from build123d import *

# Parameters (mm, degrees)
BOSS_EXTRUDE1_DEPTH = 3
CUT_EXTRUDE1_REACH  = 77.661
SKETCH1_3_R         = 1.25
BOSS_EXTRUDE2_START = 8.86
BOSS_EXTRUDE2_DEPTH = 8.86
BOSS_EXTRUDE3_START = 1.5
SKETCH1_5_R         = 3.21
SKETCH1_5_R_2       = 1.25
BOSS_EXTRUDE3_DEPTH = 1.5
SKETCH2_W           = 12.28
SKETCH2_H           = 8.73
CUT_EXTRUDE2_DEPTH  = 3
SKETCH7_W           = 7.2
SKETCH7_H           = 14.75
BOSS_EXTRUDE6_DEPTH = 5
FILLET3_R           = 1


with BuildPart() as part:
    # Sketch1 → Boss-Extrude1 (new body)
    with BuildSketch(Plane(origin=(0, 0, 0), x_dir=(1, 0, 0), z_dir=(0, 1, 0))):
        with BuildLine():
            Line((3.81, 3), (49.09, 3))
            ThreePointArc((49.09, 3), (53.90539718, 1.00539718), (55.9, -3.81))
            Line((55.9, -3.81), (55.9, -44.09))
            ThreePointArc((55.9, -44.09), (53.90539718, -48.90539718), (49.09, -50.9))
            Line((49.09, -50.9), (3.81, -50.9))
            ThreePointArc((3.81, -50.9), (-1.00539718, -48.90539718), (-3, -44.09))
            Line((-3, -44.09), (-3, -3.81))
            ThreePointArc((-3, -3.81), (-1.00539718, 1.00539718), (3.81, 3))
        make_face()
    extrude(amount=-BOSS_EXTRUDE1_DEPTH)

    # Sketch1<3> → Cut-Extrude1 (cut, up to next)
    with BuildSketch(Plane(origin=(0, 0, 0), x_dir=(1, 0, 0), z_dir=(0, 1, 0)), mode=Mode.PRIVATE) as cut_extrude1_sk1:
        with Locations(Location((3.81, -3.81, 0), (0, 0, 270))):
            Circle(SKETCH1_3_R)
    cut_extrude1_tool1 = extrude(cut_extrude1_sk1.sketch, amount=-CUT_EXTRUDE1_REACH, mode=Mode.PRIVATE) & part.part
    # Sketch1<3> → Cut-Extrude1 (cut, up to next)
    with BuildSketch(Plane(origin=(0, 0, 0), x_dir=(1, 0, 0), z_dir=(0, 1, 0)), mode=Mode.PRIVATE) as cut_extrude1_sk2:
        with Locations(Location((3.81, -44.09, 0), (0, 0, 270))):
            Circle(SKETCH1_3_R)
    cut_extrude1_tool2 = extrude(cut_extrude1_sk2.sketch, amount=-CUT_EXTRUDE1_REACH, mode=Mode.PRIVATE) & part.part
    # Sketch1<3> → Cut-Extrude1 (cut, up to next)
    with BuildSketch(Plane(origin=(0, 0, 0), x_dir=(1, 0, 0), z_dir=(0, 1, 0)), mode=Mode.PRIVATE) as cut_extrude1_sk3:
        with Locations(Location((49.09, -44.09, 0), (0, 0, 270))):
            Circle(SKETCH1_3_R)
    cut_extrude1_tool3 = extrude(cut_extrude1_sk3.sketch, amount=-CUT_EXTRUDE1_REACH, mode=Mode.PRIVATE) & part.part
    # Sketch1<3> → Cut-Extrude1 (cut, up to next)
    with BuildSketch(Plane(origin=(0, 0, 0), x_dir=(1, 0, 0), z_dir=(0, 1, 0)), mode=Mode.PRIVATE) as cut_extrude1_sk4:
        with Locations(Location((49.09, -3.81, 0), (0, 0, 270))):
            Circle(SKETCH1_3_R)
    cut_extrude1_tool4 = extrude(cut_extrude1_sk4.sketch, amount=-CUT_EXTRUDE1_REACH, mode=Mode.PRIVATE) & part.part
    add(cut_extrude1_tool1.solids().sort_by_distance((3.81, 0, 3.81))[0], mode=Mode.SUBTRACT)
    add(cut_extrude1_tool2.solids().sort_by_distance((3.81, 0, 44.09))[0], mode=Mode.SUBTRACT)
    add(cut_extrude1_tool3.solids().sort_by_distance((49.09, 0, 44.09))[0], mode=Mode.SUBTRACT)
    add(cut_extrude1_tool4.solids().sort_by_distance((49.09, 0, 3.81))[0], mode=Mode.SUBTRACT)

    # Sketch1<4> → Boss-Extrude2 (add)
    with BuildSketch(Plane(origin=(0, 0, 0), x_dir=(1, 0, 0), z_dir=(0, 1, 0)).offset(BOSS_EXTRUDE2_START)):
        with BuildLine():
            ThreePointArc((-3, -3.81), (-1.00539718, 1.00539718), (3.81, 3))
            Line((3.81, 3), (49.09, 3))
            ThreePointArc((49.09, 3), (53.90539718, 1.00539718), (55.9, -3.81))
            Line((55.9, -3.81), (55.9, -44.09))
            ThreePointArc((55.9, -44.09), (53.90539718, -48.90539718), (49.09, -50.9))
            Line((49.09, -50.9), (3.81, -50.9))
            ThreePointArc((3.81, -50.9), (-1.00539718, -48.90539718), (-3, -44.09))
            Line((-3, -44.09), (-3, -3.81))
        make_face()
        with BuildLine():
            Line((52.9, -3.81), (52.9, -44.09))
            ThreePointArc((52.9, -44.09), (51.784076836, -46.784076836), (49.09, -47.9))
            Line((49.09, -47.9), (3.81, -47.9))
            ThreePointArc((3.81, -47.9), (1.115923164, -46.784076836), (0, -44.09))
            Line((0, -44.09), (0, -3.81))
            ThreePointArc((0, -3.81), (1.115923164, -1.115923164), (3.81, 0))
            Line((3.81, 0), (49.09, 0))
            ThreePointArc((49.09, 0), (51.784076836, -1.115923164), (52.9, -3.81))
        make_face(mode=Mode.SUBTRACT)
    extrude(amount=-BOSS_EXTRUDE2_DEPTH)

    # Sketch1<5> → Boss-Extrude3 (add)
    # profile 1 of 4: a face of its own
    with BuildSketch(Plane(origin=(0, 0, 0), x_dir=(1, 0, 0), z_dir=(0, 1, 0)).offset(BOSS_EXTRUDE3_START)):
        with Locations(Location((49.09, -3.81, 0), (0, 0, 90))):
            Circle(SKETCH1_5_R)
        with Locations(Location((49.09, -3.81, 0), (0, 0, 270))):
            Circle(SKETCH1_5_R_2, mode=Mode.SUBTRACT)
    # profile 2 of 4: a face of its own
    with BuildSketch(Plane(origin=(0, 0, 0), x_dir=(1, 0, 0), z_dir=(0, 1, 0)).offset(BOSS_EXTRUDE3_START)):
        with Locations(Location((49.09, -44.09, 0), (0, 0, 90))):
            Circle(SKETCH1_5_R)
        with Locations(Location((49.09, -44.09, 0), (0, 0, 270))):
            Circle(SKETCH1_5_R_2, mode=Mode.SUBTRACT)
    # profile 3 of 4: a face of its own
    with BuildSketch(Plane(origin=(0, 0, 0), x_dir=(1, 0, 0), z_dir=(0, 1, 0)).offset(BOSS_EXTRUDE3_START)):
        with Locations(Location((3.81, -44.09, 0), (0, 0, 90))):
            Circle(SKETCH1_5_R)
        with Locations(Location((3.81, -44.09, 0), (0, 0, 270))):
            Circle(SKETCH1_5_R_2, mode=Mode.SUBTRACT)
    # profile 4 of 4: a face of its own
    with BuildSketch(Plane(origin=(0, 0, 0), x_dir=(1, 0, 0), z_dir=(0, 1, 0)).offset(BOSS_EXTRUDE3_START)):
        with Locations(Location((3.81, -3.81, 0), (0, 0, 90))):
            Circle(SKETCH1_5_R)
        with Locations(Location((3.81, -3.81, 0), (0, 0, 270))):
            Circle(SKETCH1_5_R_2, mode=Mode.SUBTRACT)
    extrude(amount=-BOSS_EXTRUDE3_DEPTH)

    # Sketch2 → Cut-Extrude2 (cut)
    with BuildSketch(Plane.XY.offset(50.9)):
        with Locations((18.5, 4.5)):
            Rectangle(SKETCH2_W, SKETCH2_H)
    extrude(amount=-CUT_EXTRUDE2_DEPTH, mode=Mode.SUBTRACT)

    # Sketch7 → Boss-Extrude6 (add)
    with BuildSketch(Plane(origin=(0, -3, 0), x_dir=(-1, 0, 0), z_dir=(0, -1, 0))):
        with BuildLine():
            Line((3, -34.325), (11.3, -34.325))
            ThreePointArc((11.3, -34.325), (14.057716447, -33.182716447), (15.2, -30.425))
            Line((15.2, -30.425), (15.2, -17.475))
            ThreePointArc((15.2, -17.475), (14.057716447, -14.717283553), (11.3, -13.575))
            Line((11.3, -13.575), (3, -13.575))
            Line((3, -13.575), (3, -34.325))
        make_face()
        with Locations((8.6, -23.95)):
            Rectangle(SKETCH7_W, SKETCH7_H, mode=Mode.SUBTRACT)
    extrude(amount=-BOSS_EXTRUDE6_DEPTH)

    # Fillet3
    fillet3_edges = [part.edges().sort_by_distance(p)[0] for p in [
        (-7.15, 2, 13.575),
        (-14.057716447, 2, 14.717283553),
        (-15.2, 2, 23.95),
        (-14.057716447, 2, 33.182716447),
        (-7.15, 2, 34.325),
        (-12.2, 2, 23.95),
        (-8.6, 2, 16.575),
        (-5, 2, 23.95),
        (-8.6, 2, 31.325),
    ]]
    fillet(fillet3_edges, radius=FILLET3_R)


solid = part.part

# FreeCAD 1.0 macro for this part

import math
import FreeCAD as App
import Part
import Sketcher
from FreeCAD import Vector


def edges_at(feature, points):
    """Names of the edges that pass closest to the given points."""
    edges = feature.Shape.Edges
    near = lambda p: min(range(len(edges)), key=lambda i: edges[i].distToShape(Part.Vertex(*p))[0])
    return sorted({f"Edge{near(p) + 1}" for p in points})


def add_polygon(sketch, points):
    """Adds a closed chain of lines whose ends are joined by coincident constraints."""
    first, n = sketch.GeometryCount, len(points)
    for a, b in zip(points, points[1:] + points[:1]):
        sketch.addGeometry(Part.LineSegment(App.Vector(*a, 0), App.Vector(*b, 0)), False)
    for i in range(n):
        sketch.addConstraint(Sketcher.Constraint("Coincident", first + i, 2, first + (i + 1) % n, 1))

doc = App.newDocument("Part")
body = doc.addObject("PartDesign::Body", "Body")

sketch1 = doc.addObject("Sketcher::SketchObject", "Sketch")
body.addObject(sketch1)
sketch1.AttachmentSupport = (doc.XZ_Plane, [""])
sketch1.MapMode = "FlatFace"
sketch1.addGeometry([
    Part.LineSegment(Vector(49, -3, 0), Vector(4, -3, 0)),
    Part.ArcOfCircle(Part.Circle(Vector(4, 4, 0), Vector(0, 0, 1), 7), math.radians(180), math.radians(270)),
    Part.LineSegment(Vector(-3, 4, 0), Vector(-3, 44, 0)),
    Part.ArcOfCircle(Part.Circle(Vector(4, 44, 0), Vector(0, 0, 1), 7), math.radians(90), math.radians(180)),
    Part.LineSegment(Vector(4, 51, 0), Vector(49, 51, 0)),
    Part.ArcOfCircle(Part.Circle(Vector(49, 44, 0), Vector(0, 0, 1), 7), math.radians(0), math.radians(90)),
    Part.LineSegment(Vector(56, 44, 0), Vector(56, 4, 0)),
    Part.ArcOfCircle(Part.Circle(Vector(49, 4, 0), Vector(0, 0, 1), 7), math.radians(-90), math.radians(0)),
], False)
sketch1.addConstraint([
    Sketcher.Constraint("Tangent", 0, 2, 1, 2),
    Sketcher.Constraint("Tangent", 1, 1, 2, 1),
    Sketcher.Constraint("Tangent", 2, 2, 3, 2),
    Sketcher.Constraint("Tangent", 3, 1, 4, 1),
    Sketcher.Constraint("Tangent", 4, 2, 5, 2),
    Sketcher.Constraint("Tangent", 5, 1, 6, 1),
    Sketcher.Constraint("Tangent", 6, 2, 7, 2),
    Sketcher.Constraint("Tangent", 7, 1, 0, 1),
    Sketcher.Constraint("Horizontal", 0),
    Sketcher.Constraint("Vertical", 2),
    Sketcher.Constraint("Horizontal", 4),
    Sketcher.Constraint("Vertical", 6),
    Sketcher.Constraint("Equal", 1, 3),
    Sketcher.Constraint("Equal", 3, 5),
    Sketcher.Constraint("Equal", 5, 7),
    Sketcher.Constraint("Radius", 1, 6.81),
    Sketcher.Constraint("DistanceY", 0, 2, -1, 1, 3.0),
    Sketcher.Constraint("DistanceX", 1, 1, -1, 1, 3.0),
    Sketcher.Constraint("DistanceX", 0, 2, 0, 1, 45.28),
    Sketcher.Constraint("DistanceY", 2, 1, 2, 2, 40.28),
])
pad1 = doc.addObject("PartDesign::Pad", "Pad")
body.addObject(pad1)
pad1.Profile = sketch1
pad1.Length = 3

sketch2 = doc.addObject("Sketcher::SketchObject", "Sketch001")
body.addObject(sketch2)
sketch2.AttachmentSupport = (doc.XZ_Plane, [""])
sketch2.MapMode = "FlatFace"
sketch2.addGeometry(Part.Circle(Vector(3.8, 3.8, 0), Vector(0, 0, 1), 1.2), False)
sketch2.addConstraint([
    Sketcher.Constraint("Diameter", 0, 2.5),
    Sketcher.Constraint("DistanceX", -1, 1, 0, 3, 3.81),
    Sketcher.Constraint("DistanceY", -1, 1, 0, 3, 3.81),
])
pocket1 = doc.addObject("PartDesign::Pocket", "Pocket")
body.addObject(pocket1)
pocket1.Profile = sketch2
pocket1.Type = "UpToFirst"
pocket1.Reversed = True

sketch3 = doc.addObject("Sketcher::SketchObject", "Sketch002")
body.addObject(sketch3)
sketch3.AttachmentSupport = (doc.XZ_Plane, [""])
sketch3.MapMode = "FlatFace"
sketch3.addGeometry(Part.Circle(Vector(3.8, 44.1, 0), Vector(0, 0, 1), 1.2), False)
sketch3.addConstraint([
    Sketcher.Constraint("Diameter", 0, 2.5),
    Sketcher.Constraint("DistanceX", -1, 1, 0, 3, 3.81),
    Sketcher.Constraint("DistanceY", -1, 1, 0, 3, 44.09),
])
pocket2 = doc.addObject("PartDesign::Pocket", "Pocket001")
body.addObject(pocket2)
pocket2.Profile = sketch3
pocket2.Type = "UpToFirst"
pocket2.Reversed = True

sketch4 = doc.addObject("Sketcher::SketchObject", "Sketch003")
body.addObject(sketch4)
sketch4.AttachmentSupport = (doc.XZ_Plane, [""])
sketch4.MapMode = "FlatFace"
sketch4.addGeometry(Part.Circle(Vector(49.1, 44.1, 0), Vector(0, 0, 1), 1.2), False)
sketch4.addConstraint([
    Sketcher.Constraint("Diameter", 0, 2.5),
    Sketcher.Constraint("DistanceX", -1, 1, 0, 3, 49.09),
    Sketcher.Constraint("DistanceY", -1, 1, 0, 3, 44.09),
])
pocket3 = doc.addObject("PartDesign::Pocket", "Pocket002")
body.addObject(pocket3)
pocket3.Profile = sketch4
pocket3.Type = "UpToFirst"
pocket3.Reversed = True

sketch5 = doc.addObject("Sketcher::SketchObject", "Sketch004")
body.addObject(sketch5)
sketch5.AttachmentSupport = (doc.XZ_Plane, [""])
sketch5.MapMode = "FlatFace"
sketch5.addGeometry(Part.Circle(Vector(49.1, 3.8, 0), Vector(0, 0, 1), 1.2), False)
sketch5.addConstraint([
    Sketcher.Constraint("Diameter", 0, 2.5),
    Sketcher.Constraint("DistanceX", -1, 1, 0, 3, 49.09),
    Sketcher.Constraint("DistanceY", -1, 1, 0, 3, 3.81),
])
pocket4 = doc.addObject("PartDesign::Pocket", "Pocket003")
body.addObject(pocket4)
pocket4.Profile = sketch5
pocket4.Type = "UpToFirst"
pocket4.Reversed = True

sketch6 = doc.addObject("Sketcher::SketchObject", "Sketch005")
body.addObject(sketch6)
sketch6.AttachmentSupport = (doc.XZ_Plane, [""])
sketch6.MapMode = "FlatFace"
sketch6.AttachmentOffset = App.Placement(Vector(0, 0, -8.86), App.Rotation())
sketch6.addGeometry([
    Part.ArcOfCircle(Part.Circle(Vector(3.8, 3.8, 0), Vector(0, 0, 1), 6.8), math.radians(180), math.radians(270)),
    Part.LineSegment(Vector(-3, 3.8, 0), Vector(-3, 44.1, 0)),
    Part.ArcOfCircle(Part.Circle(Vector(3.8, 44.1, 0), Vector(0, 0, 1), 6.8), math.radians(90), math.radians(180)),
    Part.LineSegment(Vector(3.8, 50.9, 0), Vector(49.1, 50.9, 0)),
    Part.ArcOfCircle(Part.Circle(Vector(49.1, 44.1, 0), Vector(0, 0, 1), 6.8), math.radians(0), math.radians(90)),
    Part.LineSegment(Vector(55.9, 44.1, 0), Vector(55.9, 3.8, 0)),
    Part.ArcOfCircle(Part.Circle(Vector(49.1, 3.8, 0), Vector(0, 0, 1), 6.8), math.radians(-90), math.radians(0)),
    Part.LineSegment(Vector(49.1, -3, 0), Vector(3.8, -3, 0)),
    Part.LineSegment(Vector(52.9, 3.8, 0), Vector(52.9, 44.1, 0)),
    Part.ArcOfCircle(Part.Circle(Vector(49.1, 44.1, 0), Vector(0, 0, 1), 3.8), math.radians(0), math.radians(90)),
    Part.LineSegment(Vector(49.1, 47.9, 0), Vector(3.8, 47.9, 0)),
    Part.ArcOfCircle(Part.Circle(Vector(3.8, 44.1, 0), Vector(0, 0, 1), 3.8), math.radians(90), math.radians(180)),
    Part.LineSegment(Vector(0, 44.1, 0), Vector(0, 3.8, 0)),
    Part.ArcOfCircle(Part.Circle(Vector(3.8, 3.8, 0), Vector(0, 0, 1), 3.8), math.radians(-180), math.radians(-90)),
    Part.LineSegment(Vector(3.8, 0, 0), Vector(49.1, 0, 0)),
    Part.ArcOfCircle(Part.Circle(Vector(49.1, 3.8, 0), Vector(0, 0, 1), 3.8), math.radians(-90), math.radians(0)),
], False)
sketch6.addConstraint([
    Sketcher.Constraint("Tangent", 0, 1, 1, 1),
    Sketcher.Constraint("Tangent", 1, 2, 2, 2),
    Sketcher.Constraint("Tangent", 2, 1, 3, 1),
    Sketcher.Constraint("Tangent", 3, 2, 4, 2),
    Sketcher.Constraint("Tangent", 4, 1, 5, 1),
    Sketcher.Constraint("Tangent", 5, 2, 6, 2),
    Sketcher.Constraint("Tangent", 6, 1, 7, 1),
    Sketcher.Constraint("Tangent", 7, 2, 0, 2),
    Sketcher.Constraint("Tangent", 8, 2, 9, 1),
    Sketcher.Constraint("Tangent", 9, 2, 10, 1),
    Sketcher.Constraint("Tangent", 10, 2, 11, 1),
    Sketcher.Constraint("Tangent", 11, 2, 12, 1),
    Sketcher.Constraint("Tangent", 12, 2, 13, 1),
    Sketcher.Constraint("Tangent", 13, 2, 14, 1),
    Sketcher.Constraint("Tangent", 14, 2, 15, 1),
    Sketcher.Constraint("Tangent", 15, 2, 8, 1),
    Sketcher.Constraint("Vertical", 1),
    Sketcher.Constraint("Horizontal", 3),
    Sketcher.Constraint("Vertical", 5),
    Sketcher.Constraint("Horizontal", 7),
    Sketcher.Constraint("Vertical", 8),
    Sketcher.Constraint("Horizontal", 10),
    Sketcher.Constraint("Vertical", 12),
    Sketcher.Constraint("Horizontal", 14),
    Sketcher.Constraint("Coincident", 9, 3, 4, 3),
    Sketcher.Constraint("Coincident", 11, 3, 2, 3),
    Sketcher.Constraint("Coincident", 13, 3, 0, 3),
    Sketcher.Constraint("Equal", 0, 2),
    Sketcher.Constraint("Equal", 2, 4),
    Sketcher.Constraint("Equal", 4, 6),
    Sketcher.Constraint("Equal", 13, 15),
    Sketcher.Constraint("PointOnObject", 11, 2, -2),
    Sketcher.Constraint("PointOnObject", 13, 2, -1),
    Sketcher.Constraint("Radius", 0, 6.81),
    Sketcher.Constraint("Radius", 9, 3.81),
    Sketcher.Constraint("DistanceX", 3, 1, 3, 2, 45.28),
    Sketcher.Constraint("DistanceY", 1, 1, 1, 2, 40.28),
])
pad2 = doc.addObject("PartDesign::Pad", "Pad001")
body.addObject(pad2)
pad2.Profile = sketch6
pad2.Length = 8.86

sketch7 = doc.addObject("Sketcher::SketchObject", "Sketch006")
body.addObject(sketch7)
sketch7.AttachmentSupport = (doc.XZ_Plane, [""])
sketch7.MapMode = "FlatFace"
sketch7.AttachmentOffset = App.Placement(Vector(0, 0, -1.5), App.Rotation())
sketch7.addGeometry([
    Part.Circle(Vector(49.1, 3.8, 0), Vector(0, 0, 1), 3.2),
    Part.Circle(Vector(49.1, 3.8, 0), Vector(0, 0, 1), 1.2),
    Part.Circle(Vector(49.1, 44.1, 0), Vector(0, 0, 1), 3.2),
    Part.Circle(Vector(49.1, 44.1, 0), Vector(0, 0, 1), 1.2),
    Part.Circle(Vector(3.8, 44.1, 0), Vector(0, 0, 1), 3.2),
    Part.Circle(Vector(3.8, 44.1, 0), Vector(0, 0, 1), 1.2),
    Part.Circle(Vector(3.8, 3.8, 0), Vector(0, 0, 1), 3.2),
    Part.Circle(Vector(3.8, 3.8, 0), Vector(0, 0, 1), 1.2),
], False)
sketch7.addConstraint([
    Sketcher.Constraint("Coincident", 1, 3, 0, 3),
    Sketcher.Constraint("Coincident", 3, 3, 2, 3),
    Sketcher.Constraint("Coincident", 5, 3, 4, 3),
    Sketcher.Constraint("Coincident", 7, 3, 6, 3),
    Sketcher.Constraint("Equal", 0, 2),
    Sketcher.Constraint("Equal", 1, 3),
    Sketcher.Constraint("Equal", 2, 4),
    Sketcher.Constraint("Equal", 3, 5),
    Sketcher.Constraint("Equal", 4, 6),
    Sketcher.Constraint("Equal", 5, 7),
    Sketcher.Constraint("Horizontal", 3, 3, 4, 3),
    Sketcher.Constraint("Horizontal", 1, 3, 6, 3),
    Sketcher.Constraint("Vertical", 1, 3, 2, 3),
    Sketcher.Constraint("Vertical", 5, 3, 6, 3),
    Sketcher.Constraint("Diameter", 1, 2.5),
    Sketcher.Constraint("Diameter", 0, 6.42),
    Sketcher.Constraint("DistanceX", -1, 1, 0, 3, 49.09),
    Sketcher.Constraint("DistanceY", -1, 1, 0, 3, 3.81),
    Sketcher.Constraint("DistanceY", -1, 1, 2, 3, 44.09),
    Sketcher.Constraint("DistanceX", -1, 1, 4, 3, 3.81),
])
pad3 = doc.addObject("PartDesign::Pad", "Pad002")
body.addObject(pad3)
pad3.Profile = sketch7
pad3.Length = 1.5

sketch8 = doc.addObject("Sketcher::SketchObject", "Sketch007")
body.addObject(sketch8)
sketch8.AttachmentSupport = (doc.XY_Plane, [""])
sketch8.MapMode = "FlatFace"
sketch8.AttachmentOffset = App.Placement(Vector(0, 0, 50.9), App.Rotation())
add_polygon(sketch8, [(12, 9), (12, 0), (25, 0), (25, 9)])
sketch8.addConstraint([
    Sketcher.Constraint("Vertical", 0),
    Sketcher.Constraint("Horizontal", 1),
    Sketcher.Constraint("Vertical", 2),
    Sketcher.Constraint("Horizontal", 3),
    Sketcher.Constraint("DistanceX", 1, 1, 1, 2, 12.28),
    Sketcher.Constraint("DistanceY", 0, 2, 0, 1, 8.73),
    Sketcher.Constraint("DistanceX", -1, 1, 0, 2, 12.36),
    Sketcher.Constraint("DistanceY", -1, 1, 0, 2, 0.135),
])
pocket5 = doc.addObject("PartDesign::Pocket", "Pocket004")
body.addObject(pocket5)
pocket5.Profile = sketch8
pocket5.Length = 3

sketch9 = doc.addObject("Sketcher::SketchObject", "Sketch008")
body.addObject(sketch9)
sketch9.AttachmentSupport = (doc.XZ_Plane, [""])
sketch9.MapMode = "FlatFace"
sketch9.AttachmentOffset = App.Placement(Vector(0, 0, 3), App.Rotation())
sketch9.addGeometry(Part.LineSegment(Vector(-3, 34.3, 0), Vector(-11.3, 34.3, 0)), False)
sketch9.addGeometry(Part.ArcOfCircle(Part.Circle(Vector(-11.3, 30.4, 0), Vector(0, 0, 1), 3.9), math.radians(90), math.radians(180)), False)
sketch9.addGeometry(Part.LineSegment(Vector(-15.2, 30.4, 0), Vector(-15.2, 17.5, 0)), False)
sketch9.addGeometry(Part.ArcOfCircle(Part.Circle(Vector(-11.3, 17.5, 0), Vector(0, 0, 1), 3.9), math.radians(180), math.radians(270)), False)
sketch9.addGeometry(Part.LineSegment(Vector(-11.3, 13.6, 0), Vector(-3, 13.6, 0)), False)
sketch9.addGeometry(Part.LineSegment(Vector(-3, 13.6, 0), Vector(-3, 34.3, 0)), False)
add_polygon(sketch9, [(-12.2, 31.3), (-5, 31.3), (-5, 16.6), (-12.2, 16.6)])
sketch9.addConstraint([
    Sketcher.Constraint("Tangent", 0, 2, 1, 1),
    Sketcher.Constraint("Tangent", 1, 2, 2, 1),
    Sketcher.Constraint("Tangent", 2, 2, 3, 1),
    Sketcher.Constraint("Tangent", 3, 2, 4, 1),
    Sketcher.Constraint("Coincident", 4, 2, 5, 1),
    Sketcher.Constraint("Coincident", 5, 2, 0, 1),
    Sketcher.Constraint("Horizontal", 0),
    Sketcher.Constraint("Vertical", 2),
    Sketcher.Constraint("Horizontal", 4),
    Sketcher.Constraint("Vertical", 5),
    Sketcher.Constraint("Horizontal", 6),
    Sketcher.Constraint("Vertical", 7),
    Sketcher.Constraint("Horizontal", 8),
    Sketcher.Constraint("Vertical", 9),
    Sketcher.Constraint("Equal", 1, 3),
    Sketcher.Constraint("Radius", 1, 3.9),
    Sketcher.Constraint("DistanceX", 0, 2, 0, 1, 8.3),
    Sketcher.Constraint("DistanceX", 6, 1, 6, 2, 7.2),
    Sketcher.Constraint("DistanceX", 4, 2, -1, 1, 3.0),
    Sketcher.Constraint("DistanceX", 6, 2, -1, 1, 5.0),
    Sketcher.Constraint("DistanceY", 6, 2, 5, 2, 3.0),
    Sketcher.Constraint("DistanceY", 4, 2, 7, 2, 3.0),
    Sketcher.Constraint("DistanceY", 2, 2, 2, 1, 12.95),
    Sketcher.Constraint("DistanceY", -1, 1, 1, 3, 30.425),
])
pad4 = doc.addObject("PartDesign::Pad", "Pad003")
body.addObject(pad4)
pad4.Profile = sketch9
pad4.Length = 5
pad4.Reversed = True
doc.recompute()

fillet = doc.addObject("PartDesign::Fillet", "Fillet")
body.addObject(fillet)
fillet.Base = (pad4, edges_at(pad4, [
    (-7.15, 2, 13.575),
    (-14.058, 2, 14.717),
    (-15.2, 2, 23.95),
    (-14.058, 2, 33.183),
    (-7.15, 2, 34.325),
    (-12.2, 2, 23.95),
    (-8.6, 2, 16.575),
    (-5, 2, 23.95),
    (-8.6, 2, 31.325),
]))
fillet.Radius = 1

doc.recompute()
